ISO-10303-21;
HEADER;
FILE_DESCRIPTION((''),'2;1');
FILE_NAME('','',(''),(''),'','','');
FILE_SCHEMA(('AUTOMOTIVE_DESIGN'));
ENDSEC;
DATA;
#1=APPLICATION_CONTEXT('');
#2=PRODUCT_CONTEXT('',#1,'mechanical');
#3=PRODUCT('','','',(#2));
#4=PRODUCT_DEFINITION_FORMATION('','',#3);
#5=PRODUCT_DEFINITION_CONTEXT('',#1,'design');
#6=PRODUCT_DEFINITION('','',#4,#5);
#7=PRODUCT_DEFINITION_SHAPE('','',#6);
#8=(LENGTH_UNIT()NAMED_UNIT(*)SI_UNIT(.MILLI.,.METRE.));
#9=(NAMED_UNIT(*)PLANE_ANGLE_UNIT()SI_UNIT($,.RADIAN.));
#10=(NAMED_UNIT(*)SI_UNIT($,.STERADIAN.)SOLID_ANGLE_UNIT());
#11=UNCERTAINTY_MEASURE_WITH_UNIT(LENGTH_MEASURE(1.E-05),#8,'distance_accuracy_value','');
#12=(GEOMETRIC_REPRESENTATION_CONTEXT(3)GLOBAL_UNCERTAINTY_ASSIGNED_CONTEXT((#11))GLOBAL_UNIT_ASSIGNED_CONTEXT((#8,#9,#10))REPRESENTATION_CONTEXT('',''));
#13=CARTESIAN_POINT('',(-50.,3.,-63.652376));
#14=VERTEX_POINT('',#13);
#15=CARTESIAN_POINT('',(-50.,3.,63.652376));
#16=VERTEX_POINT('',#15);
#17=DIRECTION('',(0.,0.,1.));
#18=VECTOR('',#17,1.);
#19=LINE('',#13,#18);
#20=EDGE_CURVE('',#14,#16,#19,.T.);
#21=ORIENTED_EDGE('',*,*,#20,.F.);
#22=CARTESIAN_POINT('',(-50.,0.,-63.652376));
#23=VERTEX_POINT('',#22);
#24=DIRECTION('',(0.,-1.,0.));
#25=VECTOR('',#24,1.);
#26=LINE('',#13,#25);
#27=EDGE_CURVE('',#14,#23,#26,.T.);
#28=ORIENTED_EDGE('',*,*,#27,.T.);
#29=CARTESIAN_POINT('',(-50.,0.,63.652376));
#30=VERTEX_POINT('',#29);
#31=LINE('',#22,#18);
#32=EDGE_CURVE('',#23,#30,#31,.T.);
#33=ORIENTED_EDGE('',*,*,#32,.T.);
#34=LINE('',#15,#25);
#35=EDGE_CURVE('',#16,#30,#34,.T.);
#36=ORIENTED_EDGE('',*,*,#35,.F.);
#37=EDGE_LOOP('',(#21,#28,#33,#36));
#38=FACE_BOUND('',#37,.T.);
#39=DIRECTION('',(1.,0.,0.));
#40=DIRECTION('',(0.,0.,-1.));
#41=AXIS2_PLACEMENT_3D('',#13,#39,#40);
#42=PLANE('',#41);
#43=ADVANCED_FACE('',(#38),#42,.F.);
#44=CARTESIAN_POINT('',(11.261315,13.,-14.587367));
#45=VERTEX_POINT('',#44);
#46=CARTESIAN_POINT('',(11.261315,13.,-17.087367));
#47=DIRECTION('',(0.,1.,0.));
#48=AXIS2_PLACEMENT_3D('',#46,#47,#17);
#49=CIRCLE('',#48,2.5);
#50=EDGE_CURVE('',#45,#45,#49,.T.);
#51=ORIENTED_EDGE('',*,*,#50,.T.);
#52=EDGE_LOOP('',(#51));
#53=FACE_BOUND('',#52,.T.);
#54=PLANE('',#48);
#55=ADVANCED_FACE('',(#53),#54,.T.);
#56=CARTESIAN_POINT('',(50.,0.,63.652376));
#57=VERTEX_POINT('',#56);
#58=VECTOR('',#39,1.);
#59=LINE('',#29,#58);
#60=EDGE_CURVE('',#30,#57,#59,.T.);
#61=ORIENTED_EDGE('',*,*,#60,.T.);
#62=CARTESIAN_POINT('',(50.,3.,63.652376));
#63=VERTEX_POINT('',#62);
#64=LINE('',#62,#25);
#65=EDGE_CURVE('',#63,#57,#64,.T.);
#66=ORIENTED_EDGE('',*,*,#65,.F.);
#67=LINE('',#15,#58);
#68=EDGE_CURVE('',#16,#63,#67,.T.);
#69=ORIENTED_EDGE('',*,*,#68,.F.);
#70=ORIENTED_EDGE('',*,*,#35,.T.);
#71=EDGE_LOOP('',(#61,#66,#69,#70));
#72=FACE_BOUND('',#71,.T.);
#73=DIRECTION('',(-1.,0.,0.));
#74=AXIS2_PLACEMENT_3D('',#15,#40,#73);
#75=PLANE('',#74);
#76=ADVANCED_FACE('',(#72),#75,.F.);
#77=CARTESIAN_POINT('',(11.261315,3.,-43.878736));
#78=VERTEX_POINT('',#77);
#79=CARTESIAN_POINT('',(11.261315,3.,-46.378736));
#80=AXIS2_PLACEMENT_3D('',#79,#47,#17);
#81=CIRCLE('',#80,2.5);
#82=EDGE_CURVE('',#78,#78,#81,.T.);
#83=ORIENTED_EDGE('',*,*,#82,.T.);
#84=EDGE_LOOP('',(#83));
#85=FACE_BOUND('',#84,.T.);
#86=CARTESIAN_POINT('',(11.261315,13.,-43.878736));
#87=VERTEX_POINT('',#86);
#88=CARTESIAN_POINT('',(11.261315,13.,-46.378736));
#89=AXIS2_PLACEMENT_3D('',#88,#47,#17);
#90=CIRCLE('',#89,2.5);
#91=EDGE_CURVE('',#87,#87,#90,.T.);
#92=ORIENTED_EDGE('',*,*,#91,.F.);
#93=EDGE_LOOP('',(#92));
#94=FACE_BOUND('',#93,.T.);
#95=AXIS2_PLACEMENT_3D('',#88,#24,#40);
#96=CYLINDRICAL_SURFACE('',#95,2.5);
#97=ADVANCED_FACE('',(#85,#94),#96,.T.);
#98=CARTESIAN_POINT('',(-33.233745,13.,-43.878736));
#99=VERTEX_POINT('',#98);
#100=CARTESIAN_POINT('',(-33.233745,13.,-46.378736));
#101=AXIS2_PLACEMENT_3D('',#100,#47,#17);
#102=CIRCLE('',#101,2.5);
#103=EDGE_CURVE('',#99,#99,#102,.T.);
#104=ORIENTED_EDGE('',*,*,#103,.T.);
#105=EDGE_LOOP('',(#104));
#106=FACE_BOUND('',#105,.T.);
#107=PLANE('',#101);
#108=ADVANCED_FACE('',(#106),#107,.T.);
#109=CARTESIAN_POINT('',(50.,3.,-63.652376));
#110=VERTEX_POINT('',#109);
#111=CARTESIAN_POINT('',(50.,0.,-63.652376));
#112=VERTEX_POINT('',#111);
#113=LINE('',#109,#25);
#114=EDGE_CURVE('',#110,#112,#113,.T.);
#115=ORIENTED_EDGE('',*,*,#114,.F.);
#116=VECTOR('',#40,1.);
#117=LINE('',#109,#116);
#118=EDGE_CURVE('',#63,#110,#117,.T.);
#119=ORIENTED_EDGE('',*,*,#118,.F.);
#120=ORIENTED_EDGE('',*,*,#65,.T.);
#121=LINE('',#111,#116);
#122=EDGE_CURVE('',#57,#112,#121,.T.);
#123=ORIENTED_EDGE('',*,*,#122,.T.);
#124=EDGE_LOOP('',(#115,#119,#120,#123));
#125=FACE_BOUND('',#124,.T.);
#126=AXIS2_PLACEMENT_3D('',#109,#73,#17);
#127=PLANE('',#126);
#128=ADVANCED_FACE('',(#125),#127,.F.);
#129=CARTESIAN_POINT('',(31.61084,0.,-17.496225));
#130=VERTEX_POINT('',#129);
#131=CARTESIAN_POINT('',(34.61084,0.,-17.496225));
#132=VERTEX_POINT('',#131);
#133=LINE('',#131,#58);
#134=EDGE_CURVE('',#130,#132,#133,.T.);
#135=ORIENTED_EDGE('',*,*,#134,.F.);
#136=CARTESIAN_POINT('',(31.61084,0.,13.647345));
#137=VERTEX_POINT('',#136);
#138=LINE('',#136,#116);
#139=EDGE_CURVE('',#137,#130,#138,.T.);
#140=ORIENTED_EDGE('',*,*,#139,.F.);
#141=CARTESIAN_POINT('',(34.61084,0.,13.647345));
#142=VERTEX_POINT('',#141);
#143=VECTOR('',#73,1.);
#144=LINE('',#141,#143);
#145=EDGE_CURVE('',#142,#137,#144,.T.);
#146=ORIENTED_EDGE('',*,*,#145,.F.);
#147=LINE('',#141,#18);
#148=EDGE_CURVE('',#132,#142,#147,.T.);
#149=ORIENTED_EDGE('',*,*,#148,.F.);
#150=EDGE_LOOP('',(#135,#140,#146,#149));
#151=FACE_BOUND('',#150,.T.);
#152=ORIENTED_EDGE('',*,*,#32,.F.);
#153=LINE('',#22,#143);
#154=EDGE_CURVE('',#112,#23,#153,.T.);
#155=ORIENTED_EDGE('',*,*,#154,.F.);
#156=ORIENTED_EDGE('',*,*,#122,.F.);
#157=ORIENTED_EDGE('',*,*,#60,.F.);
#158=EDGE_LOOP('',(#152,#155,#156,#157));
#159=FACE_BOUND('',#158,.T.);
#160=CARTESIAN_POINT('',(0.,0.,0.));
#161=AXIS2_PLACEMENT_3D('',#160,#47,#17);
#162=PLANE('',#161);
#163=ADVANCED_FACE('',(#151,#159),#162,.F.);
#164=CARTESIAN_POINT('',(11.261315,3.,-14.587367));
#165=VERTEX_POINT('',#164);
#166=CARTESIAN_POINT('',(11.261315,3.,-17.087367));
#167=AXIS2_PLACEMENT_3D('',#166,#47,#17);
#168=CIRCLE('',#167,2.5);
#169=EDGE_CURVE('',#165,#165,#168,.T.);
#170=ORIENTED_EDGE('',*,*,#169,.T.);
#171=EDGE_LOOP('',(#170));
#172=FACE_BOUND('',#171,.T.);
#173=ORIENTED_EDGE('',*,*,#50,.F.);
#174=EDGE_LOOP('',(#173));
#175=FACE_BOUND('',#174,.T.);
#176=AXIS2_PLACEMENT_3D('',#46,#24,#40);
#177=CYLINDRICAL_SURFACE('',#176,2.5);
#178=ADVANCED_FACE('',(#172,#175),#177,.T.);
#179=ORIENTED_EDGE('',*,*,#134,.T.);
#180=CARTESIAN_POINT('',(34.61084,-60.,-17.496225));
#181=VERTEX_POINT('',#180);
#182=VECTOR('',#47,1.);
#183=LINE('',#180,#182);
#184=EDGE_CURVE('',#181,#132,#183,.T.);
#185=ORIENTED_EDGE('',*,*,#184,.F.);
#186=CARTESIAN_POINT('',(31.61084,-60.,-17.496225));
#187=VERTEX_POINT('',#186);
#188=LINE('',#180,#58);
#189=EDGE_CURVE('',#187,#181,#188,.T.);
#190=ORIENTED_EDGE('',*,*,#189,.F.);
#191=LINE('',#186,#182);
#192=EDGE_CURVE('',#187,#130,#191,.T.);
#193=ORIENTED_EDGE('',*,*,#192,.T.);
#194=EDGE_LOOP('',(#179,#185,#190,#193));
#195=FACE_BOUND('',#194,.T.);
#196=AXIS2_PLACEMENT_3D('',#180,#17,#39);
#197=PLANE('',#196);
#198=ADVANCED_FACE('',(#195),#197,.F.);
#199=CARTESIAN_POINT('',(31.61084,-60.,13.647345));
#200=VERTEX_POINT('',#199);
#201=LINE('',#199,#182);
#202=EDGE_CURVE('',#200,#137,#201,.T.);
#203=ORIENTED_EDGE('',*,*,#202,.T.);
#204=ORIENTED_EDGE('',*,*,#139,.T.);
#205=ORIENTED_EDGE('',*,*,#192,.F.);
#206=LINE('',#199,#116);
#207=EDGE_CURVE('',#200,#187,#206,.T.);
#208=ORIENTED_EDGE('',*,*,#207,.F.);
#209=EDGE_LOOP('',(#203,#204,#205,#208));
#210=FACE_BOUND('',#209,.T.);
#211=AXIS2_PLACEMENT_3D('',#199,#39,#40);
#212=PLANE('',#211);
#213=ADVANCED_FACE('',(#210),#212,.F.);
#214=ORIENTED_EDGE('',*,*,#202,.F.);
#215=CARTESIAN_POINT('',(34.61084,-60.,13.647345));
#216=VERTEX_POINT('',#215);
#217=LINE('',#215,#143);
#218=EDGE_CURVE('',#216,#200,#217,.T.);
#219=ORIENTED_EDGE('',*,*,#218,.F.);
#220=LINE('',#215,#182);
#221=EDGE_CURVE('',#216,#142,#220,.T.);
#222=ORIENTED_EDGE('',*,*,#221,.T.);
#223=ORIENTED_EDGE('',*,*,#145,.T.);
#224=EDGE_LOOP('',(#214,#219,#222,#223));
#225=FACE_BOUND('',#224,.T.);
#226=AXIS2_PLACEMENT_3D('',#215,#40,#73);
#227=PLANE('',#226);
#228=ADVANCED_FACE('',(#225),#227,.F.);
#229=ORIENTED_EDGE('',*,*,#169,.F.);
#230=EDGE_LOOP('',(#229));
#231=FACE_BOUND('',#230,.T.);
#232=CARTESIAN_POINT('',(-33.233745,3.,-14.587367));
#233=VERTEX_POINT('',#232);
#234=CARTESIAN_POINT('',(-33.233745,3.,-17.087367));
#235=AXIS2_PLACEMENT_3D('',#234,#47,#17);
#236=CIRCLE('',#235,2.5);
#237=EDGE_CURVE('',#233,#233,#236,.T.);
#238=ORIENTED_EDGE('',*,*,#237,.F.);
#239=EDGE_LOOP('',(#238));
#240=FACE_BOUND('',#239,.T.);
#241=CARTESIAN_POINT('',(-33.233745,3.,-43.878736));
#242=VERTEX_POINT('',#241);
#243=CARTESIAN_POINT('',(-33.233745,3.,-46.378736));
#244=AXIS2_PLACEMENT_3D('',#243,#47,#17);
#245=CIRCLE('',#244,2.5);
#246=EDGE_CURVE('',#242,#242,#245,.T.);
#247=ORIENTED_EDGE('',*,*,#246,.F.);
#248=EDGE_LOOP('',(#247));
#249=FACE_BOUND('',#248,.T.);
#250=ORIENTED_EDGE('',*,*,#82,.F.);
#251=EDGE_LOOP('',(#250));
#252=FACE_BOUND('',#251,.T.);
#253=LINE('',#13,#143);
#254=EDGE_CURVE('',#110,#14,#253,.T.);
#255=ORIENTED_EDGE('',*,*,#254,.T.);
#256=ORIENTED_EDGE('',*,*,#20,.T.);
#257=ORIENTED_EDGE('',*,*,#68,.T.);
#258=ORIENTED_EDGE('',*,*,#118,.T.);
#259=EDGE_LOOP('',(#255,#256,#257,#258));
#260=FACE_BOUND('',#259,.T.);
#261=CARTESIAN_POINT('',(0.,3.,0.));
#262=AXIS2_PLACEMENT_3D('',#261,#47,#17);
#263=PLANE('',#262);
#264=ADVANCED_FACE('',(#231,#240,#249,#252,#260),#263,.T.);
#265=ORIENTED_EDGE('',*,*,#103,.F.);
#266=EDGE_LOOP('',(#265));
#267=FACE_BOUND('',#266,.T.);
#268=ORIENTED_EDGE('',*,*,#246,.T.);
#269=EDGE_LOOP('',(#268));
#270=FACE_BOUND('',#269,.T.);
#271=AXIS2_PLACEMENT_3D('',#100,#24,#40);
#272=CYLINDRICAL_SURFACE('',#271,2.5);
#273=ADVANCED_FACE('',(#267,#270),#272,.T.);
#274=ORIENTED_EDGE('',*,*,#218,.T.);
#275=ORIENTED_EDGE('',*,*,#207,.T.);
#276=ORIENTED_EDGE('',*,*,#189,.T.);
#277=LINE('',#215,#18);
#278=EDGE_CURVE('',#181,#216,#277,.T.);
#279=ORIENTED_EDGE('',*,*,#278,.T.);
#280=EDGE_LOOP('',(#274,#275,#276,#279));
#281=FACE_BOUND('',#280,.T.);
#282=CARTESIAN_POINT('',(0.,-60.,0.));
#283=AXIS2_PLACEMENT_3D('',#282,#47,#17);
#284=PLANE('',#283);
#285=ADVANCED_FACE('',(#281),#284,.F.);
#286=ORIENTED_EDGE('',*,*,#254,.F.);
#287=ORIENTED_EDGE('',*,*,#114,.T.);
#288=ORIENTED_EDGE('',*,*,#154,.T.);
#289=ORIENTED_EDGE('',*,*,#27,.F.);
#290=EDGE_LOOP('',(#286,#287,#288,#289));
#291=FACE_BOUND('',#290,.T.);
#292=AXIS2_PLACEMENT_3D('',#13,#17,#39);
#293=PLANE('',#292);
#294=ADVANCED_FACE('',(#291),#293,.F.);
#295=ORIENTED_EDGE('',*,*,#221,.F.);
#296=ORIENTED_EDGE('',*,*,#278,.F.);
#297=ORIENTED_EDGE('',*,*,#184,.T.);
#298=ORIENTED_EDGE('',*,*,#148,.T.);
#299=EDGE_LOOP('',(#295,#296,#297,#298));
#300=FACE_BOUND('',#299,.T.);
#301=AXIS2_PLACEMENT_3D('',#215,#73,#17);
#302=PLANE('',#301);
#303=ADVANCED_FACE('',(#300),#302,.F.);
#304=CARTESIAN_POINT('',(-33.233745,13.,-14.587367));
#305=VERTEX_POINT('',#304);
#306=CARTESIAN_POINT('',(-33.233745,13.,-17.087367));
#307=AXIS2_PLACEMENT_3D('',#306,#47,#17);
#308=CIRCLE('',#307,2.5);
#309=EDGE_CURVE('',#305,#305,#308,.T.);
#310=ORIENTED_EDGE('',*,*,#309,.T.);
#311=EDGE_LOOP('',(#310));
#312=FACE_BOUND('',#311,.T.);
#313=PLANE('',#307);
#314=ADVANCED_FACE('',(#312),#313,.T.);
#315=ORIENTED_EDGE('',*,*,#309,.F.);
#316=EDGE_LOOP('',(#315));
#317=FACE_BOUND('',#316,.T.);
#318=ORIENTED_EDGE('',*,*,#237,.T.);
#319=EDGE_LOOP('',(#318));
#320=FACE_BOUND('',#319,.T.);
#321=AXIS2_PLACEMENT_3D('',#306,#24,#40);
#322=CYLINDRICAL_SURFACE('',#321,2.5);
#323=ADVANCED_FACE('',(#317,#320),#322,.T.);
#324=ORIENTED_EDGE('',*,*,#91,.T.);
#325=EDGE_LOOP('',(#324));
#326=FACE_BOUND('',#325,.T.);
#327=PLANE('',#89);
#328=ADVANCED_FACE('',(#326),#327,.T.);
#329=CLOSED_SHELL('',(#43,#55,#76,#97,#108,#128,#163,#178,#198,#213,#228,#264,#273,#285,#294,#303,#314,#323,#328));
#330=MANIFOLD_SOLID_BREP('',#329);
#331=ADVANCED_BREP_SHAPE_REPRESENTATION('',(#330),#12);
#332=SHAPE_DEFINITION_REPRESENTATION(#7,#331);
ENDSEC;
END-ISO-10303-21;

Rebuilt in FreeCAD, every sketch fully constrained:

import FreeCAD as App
import Part
import Sketcher

doc = App.newDocument("Part")
params = doc.addObject("Spreadsheet::Sheet", "Params")
for row, (alias, value) in enumerate([
    ("sketch1_width", "100 mm"),
    ("pad1_length", "3 mm"),
    ("sketch2_width", "3 mm"),
    ("pad2_length", "60 mm"),
    ("sketch3_diameter", "5 mm"),
    ("pad3_length", "10 mm"),
], start=1):
    params.set(f"A{row}", alias)
    params.set(f"B{row}", "=" + value)
    params.setAlias(f"B{row}", alias)

body = doc.addObject("PartDesign::Body", "Body")

# Sketch on XZ plane
sketch1 = body.newObject("Sketcher::SketchObject", "Sketch")
sketch1.AttachmentSupport = (doc.getObject("XZ_Plane"), [""])
sketch1.MapMode = "FlatFace"
sketch1.addGeometry([
    Part.LineSegment(App.Vector(-50, -63.652376, 0), App.Vector(-50, 63.652376, 0)),
    Part.LineSegment(App.Vector(-50, 63.652376, 0), App.Vector(50, 63.652376, 0)),
    Part.LineSegment(App.Vector(50, 63.652376, 0), App.Vector(50, -63.652376, 0)),
    Part.LineSegment(App.Vector(50, -63.652376, 0), App.Vector(-50, -63.652376, 0)),
], False)
sketch1.addConstraint([
    Sketcher.Constraint("Coincident", 0, 2, 1, 1),
    Sketcher.Constraint("Coincident", 1, 2, 2, 1),
    Sketcher.Constraint("Coincident", 2, 2, 3, 1),
    Sketcher.Constraint("Coincident", 3, 2, 0, 1),
    Sketcher.Constraint("Vertical", 0),
    Sketcher.Constraint("Horizontal", 1),
    Sketcher.Constraint("Vertical", 2),
    Sketcher.Constraint("Horizontal", 3),
    Sketcher.Constraint("Symmetric", 0, 2, 2, 2, -1, 1),
    Sketcher.Constraint("DistanceX", 1, 1, 1, 2, 100.0),
    Sketcher.Constraint("DistanceY", 0, 1, 0, 2, 127.304753),
])
sketch1.setExpression("Constraints[9]", "Params.sketch1_width")
pad1 = body.newObject("PartDesign::Pad", "Pad")
pad1.Profile = sketch1
pad1.setExpression("Length", "Params.pad1_length")
pad1.Reversed = True

# Sketch on XZ plane
sketch2 = body.newObject("Sketcher::SketchObject", "Sketch001")
sketch2.AttachmentSupport = (doc.getObject("XZ_Plane"), [""])
sketch2.MapMode = "FlatFace"
sketch2.addGeometry([
    Part.LineSegment(App.Vector(31.61084, 13.647345, 0), App.Vector(31.61084, -17.496225, 0)),
    Part.LineSegment(App.Vector(31.61084, -17.496225, 0), App.Vector(34.61084, -17.496225, 0)),
    Part.LineSegment(App.Vector(34.61084, -17.496225, 0), App.Vector(34.61084, 13.647345, 0)),
    Part.LineSegment(App.Vector(34.61084, 13.647345, 0), App.Vector(31.61084, 13.647345, 0)),
], False)
sketch2.addConstraint([
    Sketcher.Constraint("Coincident", 0, 2, 1, 1),
    Sketcher.Constraint("Coincident", 1, 2, 2, 1),
    Sketcher.Constraint("Coincident", 2, 2, 3, 1),
    Sketcher.Constraint("Coincident", 3, 2, 0, 1),
    Sketcher.Constraint("Vertical", 0),
    Sketcher.Constraint("Horizontal", 1),
    Sketcher.Constraint("Vertical", 2),
    Sketcher.Constraint("Horizontal", 3),
    Sketcher.Constraint("DistanceX", 1, 1, 1, 2, 3.0),
    Sketcher.Constraint("DistanceY", 0, 2, 0, 1, 31.143571),
    Sketcher.Constraint("DistanceX", -1, 1, 0, 2, 31.61084),
    Sketcher.Constraint("DistanceY", 0, 2, -1, 1, 17.496225),
])
sketch2.setExpression("Constraints[8]", "Params.sketch2_width")
pad2 = body.newObject("PartDesign::Pad", "Pad001")
pad2.Profile = sketch2
pad2.setExpression("Length", "Params.pad2_length")

# Sketch on XZ plane
sketch3 = body.newObject("Sketcher::SketchObject", "Sketch002")
sketch3.AttachmentSupport = (doc.getObject("XZ_Plane"), [""])
sketch3.MapMode = "FlatFace"
sketch3.AttachmentOffset = App.Placement(App.Vector(0, 0, -3), App.Rotation())
sketch3.addGeometry([
    Part.Circle(App.Vector(11.261315, -46.378736, 0), App.Vector(0, 0, 1), 2.5),
    Part.Circle(App.Vector(11.261315, -17.087367, 0), App.Vector(0, 0, 1), 2.5),
    Part.Circle(App.Vector(-33.233745, -17.087367, 0), App.Vector(0, 0, 1), 2.5),
    Part.Circle(App.Vector(-33.233745, -46.378736, 0), App.Vector(0, 0, 1), 2.5),
], False)
sketch3.addConstraint([
    Sketcher.Constraint("Equal", 0, 1),
    Sketcher.Constraint("Equal", 1, 2),
    Sketcher.Constraint("Equal", 2, 3),
    Sketcher.Constraint("Horizontal", 1, 3, 2, 3),
    Sketcher.Constraint("Horizontal", 0, 3, 3, 3),
    Sketcher.Constraint("Vertical", 0, 3, 1, 3),
    Sketcher.Constraint("Vertical", 2, 3, 3, 3),
    Sketcher.Constraint("Diameter", 0, 5.0),
    Sketcher.Constraint("DistanceY", 0, 3, 1, 3, 29.291369),
    Sketcher.Constraint("DistanceX", 2, 3, 1, 3, 44.49506),
    Sketcher.Constraint("DistanceX", -1, 1, 0, 3, 11.261315),
    Sketcher.Constraint("DistanceY", 0, 3, -1, 1, 46.378736),
])
sketch3.setExpression("Constraints[7]", "Params.sketch3_diameter")
pad3 = body.newObject("PartDesign::Pad", "Pad002")
pad3.Profile = sketch3
pad3.setExpression("Length", "Params.pad3_length")
pad3.Reversed = True

doc.recompute()
